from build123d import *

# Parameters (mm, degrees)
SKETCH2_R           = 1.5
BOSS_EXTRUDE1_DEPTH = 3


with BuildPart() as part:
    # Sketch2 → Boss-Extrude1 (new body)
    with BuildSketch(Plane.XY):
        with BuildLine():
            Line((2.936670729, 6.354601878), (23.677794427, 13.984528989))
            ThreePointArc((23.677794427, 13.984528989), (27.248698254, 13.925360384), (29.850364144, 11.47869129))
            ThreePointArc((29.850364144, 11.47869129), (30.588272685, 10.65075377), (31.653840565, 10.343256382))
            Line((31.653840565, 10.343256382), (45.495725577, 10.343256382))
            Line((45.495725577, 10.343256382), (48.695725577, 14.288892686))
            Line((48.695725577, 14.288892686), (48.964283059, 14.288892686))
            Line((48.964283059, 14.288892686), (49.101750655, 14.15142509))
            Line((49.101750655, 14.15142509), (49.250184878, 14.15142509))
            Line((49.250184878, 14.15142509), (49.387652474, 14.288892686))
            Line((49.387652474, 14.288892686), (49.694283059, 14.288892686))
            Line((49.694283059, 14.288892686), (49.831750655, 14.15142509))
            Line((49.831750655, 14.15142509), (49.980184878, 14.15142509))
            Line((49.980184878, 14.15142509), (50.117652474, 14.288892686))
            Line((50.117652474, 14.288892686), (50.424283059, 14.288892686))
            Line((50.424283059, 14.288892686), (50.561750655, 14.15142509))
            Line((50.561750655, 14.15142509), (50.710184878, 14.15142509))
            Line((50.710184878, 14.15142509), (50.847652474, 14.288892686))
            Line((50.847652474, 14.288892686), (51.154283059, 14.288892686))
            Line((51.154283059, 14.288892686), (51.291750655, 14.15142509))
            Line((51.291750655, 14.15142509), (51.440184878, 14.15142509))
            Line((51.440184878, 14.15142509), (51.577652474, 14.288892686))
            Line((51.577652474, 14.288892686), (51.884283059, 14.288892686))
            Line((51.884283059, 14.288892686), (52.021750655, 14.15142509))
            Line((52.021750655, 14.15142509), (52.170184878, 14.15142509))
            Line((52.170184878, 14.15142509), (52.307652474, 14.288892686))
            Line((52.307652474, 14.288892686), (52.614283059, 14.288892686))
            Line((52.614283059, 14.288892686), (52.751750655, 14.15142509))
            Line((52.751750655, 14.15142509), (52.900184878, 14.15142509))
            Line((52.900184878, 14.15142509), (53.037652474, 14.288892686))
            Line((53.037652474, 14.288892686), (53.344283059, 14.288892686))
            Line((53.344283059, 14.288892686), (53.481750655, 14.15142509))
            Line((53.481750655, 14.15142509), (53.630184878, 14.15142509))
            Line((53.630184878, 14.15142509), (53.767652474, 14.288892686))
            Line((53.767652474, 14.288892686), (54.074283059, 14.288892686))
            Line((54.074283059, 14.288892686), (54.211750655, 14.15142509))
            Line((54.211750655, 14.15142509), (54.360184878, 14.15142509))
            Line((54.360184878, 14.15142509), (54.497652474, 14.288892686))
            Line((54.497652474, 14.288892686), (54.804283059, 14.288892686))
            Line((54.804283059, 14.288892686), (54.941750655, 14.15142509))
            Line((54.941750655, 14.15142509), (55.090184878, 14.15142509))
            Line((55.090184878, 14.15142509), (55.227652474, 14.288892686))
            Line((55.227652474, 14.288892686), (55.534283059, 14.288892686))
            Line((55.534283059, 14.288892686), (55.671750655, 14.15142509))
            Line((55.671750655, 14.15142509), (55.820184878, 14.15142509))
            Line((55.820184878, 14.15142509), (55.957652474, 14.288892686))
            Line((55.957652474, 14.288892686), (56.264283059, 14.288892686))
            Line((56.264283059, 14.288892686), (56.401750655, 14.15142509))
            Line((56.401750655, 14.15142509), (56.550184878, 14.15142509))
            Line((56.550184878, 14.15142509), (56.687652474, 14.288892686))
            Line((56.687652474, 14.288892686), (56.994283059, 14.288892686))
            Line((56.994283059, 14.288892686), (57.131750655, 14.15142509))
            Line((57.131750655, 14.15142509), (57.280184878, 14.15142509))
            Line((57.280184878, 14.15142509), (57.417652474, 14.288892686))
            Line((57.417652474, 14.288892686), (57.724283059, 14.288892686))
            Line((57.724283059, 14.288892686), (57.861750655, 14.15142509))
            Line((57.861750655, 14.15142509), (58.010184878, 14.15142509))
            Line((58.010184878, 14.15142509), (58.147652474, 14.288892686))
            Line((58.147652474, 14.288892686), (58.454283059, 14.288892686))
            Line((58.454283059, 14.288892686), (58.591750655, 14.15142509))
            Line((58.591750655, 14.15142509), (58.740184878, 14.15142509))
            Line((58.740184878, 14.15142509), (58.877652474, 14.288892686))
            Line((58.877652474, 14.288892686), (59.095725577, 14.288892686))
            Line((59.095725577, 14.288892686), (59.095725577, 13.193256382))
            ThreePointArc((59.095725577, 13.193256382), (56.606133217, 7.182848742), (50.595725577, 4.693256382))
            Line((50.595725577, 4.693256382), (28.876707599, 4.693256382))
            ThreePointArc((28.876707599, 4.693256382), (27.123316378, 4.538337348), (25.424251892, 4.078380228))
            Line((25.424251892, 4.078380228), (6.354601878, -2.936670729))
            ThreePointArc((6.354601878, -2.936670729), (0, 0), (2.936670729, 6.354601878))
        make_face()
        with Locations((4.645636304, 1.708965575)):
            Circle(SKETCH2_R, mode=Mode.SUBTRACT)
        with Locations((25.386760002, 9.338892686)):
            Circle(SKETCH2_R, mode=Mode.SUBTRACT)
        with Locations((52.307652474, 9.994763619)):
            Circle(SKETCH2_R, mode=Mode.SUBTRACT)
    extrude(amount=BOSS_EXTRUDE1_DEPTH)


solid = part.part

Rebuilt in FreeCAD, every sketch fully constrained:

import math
import FreeCAD as App
import Part
import Sketcher
from FreeCAD import Vector
Q = App.Units.Quantity

doc = App.newDocument("Part")
params = doc.addObject("Spreadsheet::Sheet", "Params")
for row, (alias, value) in enumerate([
    ("sketch1_diameter", "3 mm"),
    ("sketch1_radius", "10 mm"),
    ("sketch1_radius2", "2 mm"),
    ("sketch1_radius3", "8.5 mm"),
    ("sketch1_radius4", "4.95 mm"),
    ("pad1_length", "3 mm"),
], start=1):
    params.set(f"A{row}", alias)
    params.set(f"B{row}", "=" + value)
    params.setAlias(f"B{row}", alias)

body = doc.addObject("PartDesign::Body", "Body")

# Sketch on XY plane
sketch1 = doc.addObject("Sketcher::SketchObject", "Sketch")
body.addObject(sketch1)
sketch1.AttachmentSupport = (doc.XY_Plane, [""])
sketch1.MapMode = "FlatFace"
sketch1.addGeometry([
    Part.LineSegment(Vector(23.68, 13.98, 0), Vector(2.94, 6.35, 0)),  # 0
    Part.ArcOfCircle(Part.Circle(Vector(4.65, 1.71, 0), Vector(0, 0, 1), 4.95), math.radians(110), math.radians(290)),  # 1
    Part.LineSegment(Vector(6.35, -2.94, 0), Vector(25.42, 4.08, 0)),  # 2
    Part.ArcOfCircle(Part.Circle(Vector(28.88, -5.31, 0), Vector(0, 0, 1), 10), math.radians(90), math.radians(110)),  # 3
    Part.LineSegment(Vector(28.88, 4.69, 0), Vector(50.6, 4.69, 0)),  # 4
    Part.ArcOfCircle(Part.Circle(Vector(50.6, 13.19, 0), Vector(0, 0, 1), 8.5), math.radians(-90), math.radians(0)),  # 5
    Part.LineSegment(Vector(59.1, 13.19, 0), Vector(59.1, 14.29, 0)),  # 6
    Part.LineSegment(Vector(59.1, 14.29, 0), Vector(58.88, 14.29, 0)),  # 7
    Part.LineSegment(Vector(58.88, 14.29, 0), Vector(58.74, 14.15, 0)),  # 8
    Part.LineSegment(Vector(58.74, 14.15, 0), Vector(58.59, 14.15, 0)),  # 9
    Part.LineSegment(Vector(58.59, 14.15, 0), Vector(58.45, 14.29, 0)),  # 10
    Part.LineSegment(Vector(58.45, 14.29, 0), Vector(58.15, 14.29, 0)),  # 11
    Part.LineSegment(Vector(58.15, 14.29, 0), Vector(58.01, 14.15, 0)),  # 12
    Part.LineSegment(Vector(58.01, 14.15, 0), Vector(57.86, 14.15, 0)),  # 13
    Part.LineSegment(Vector(57.86, 14.15, 0), Vector(57.72, 14.29, 0)),  # 14
    Part.LineSegment(Vector(57.72, 14.29, 0), Vector(57.42, 14.29, 0)),  # 15
    Part.LineSegment(Vector(57.42, 14.29, 0), Vector(57.28, 14.15, 0)),  # 16
    Part.LineSegment(Vector(57.28, 14.15, 0), Vector(57.13, 14.15, 0)),  # 17
    Part.LineSegment(Vector(57.13, 14.15, 0), Vector(56.99, 14.29, 0)),  # 18
    Part.LineSegment(Vector(56.99, 14.29, 0), Vector(56.69, 14.29, 0)),  # 19
    Part.LineSegment(Vector(56.69, 14.29, 0), Vector(56.55, 14.15, 0)),  # 20
    Part.LineSegment(Vector(56.55, 14.15, 0), Vector(56.4, 14.15, 0)),  # 21
    Part.LineSegment(Vector(56.4, 14.15, 0), Vector(56.26, 14.29, 0)),  # 22
    Part.LineSegment(Vector(56.26, 14.29, 0), Vector(55.96, 14.29, 0)),  # 23
    Part.LineSegment(Vector(55.96, 14.29, 0), Vector(55.82, 14.15, 0)),  # 24
    Part.LineSegment(Vector(55.82, 14.15, 0), Vector(55.67, 14.15, 0)),  # 25
    Part.LineSegment(Vector(55.67, 14.15, 0), Vector(55.53, 14.29, 0)),  # 26
    Part.LineSegment(Vector(55.53, 14.29, 0), Vector(55.23, 14.29, 0)),  # 27
    Part.LineSegment(Vector(55.23, 14.29, 0), Vector(55.09, 14.15, 0)),  # 28
    Part.LineSegment(Vector(55.09, 14.15, 0), Vector(54.94, 14.15, 0)),  # 29
    Part.LineSegment(Vector(54.94, 14.15, 0), Vector(54.8, 14.29, 0)),  # 30
    Part.LineSegment(Vector(54.8, 14.29, 0), Vector(54.5, 14.29, 0)),  # 31
    Part.LineSegment(Vector(54.5, 14.29, 0), Vector(54.36, 14.15, 0)),  # 32
    Part.LineSegment(Vector(54.36, 14.15, 0), Vector(54.21, 14.15, 0)),  # 33
    Part.LineSegment(Vector(54.21, 14.15, 0), Vector(54.07, 14.29, 0)),  # 34
    Part.LineSegment(Vector(54.07, 14.29, 0), Vector(53.77, 14.29, 0)),  # 35
    Part.LineSegment(Vector(53.77, 14.29, 0), Vector(53.63, 14.15, 0)),  # 36
    Part.LineSegment(Vector(53.63, 14.15, 0), Vector(53.48, 14.15, 0)),  # 37
    Part.LineSegment(Vector(53.48, 14.15, 0), Vector(53.34, 14.29, 0)),  # 38
    Part.LineSegment(Vector(53.34, 14.29, 0), Vector(53.04, 14.29, 0)),  # 39
    Part.LineSegment(Vector(53.04, 14.29, 0), Vector(52.9, 14.15, 0)),  # 40
    Part.LineSegment(Vector(52.9, 14.15, 0), Vector(52.75, 14.15, 0)),  # 41
    Part.LineSegment(Vector(52.75, 14.15, 0), Vector(52.61, 14.29, 0)),  # 42
    Part.LineSegment(Vector(52.61, 14.29, 0), Vector(52.31, 14.29, 0)),  # 43
    Part.LineSegment(Vector(52.31, 14.29, 0), Vector(52.17, 14.15, 0)),  # 44
    Part.LineSegment(Vector(52.17, 14.15, 0), Vector(52.02, 14.15, 0)),  # 45
    Part.LineSegment(Vector(52.02, 14.15, 0), Vector(51.88, 14.29, 0)),  # 46
    Part.LineSegment(Vector(51.88, 14.29, 0), Vector(51.58, 14.29, 0)),  # 47
    Part.LineSegment(Vector(51.58, 14.29, 0), Vector(51.44, 14.15, 0)),  # 48
    Part.LineSegment(Vector(51.44, 14.15, 0), Vector(51.29, 14.15, 0)),  # 49
    Part.LineSegment(Vector(51.29, 14.15, 0), Vector(51.15, 14.29, 0)),  # 50
    Part.LineSegment(Vector(51.15, 14.29, 0), Vector(50.85, 14.29, 0)),  # 51
    Part.LineSegment(Vector(50.85, 14.29, 0), Vector(50.71, 14.15, 0)),  # 52
    Part.LineSegment(Vector(50.71, 14.15, 0), Vector(50.56, 14.15, 0)),  # 53
    Part.LineSegment(Vector(50.56, 14.15, 0), Vector(50.42, 14.29, 0)),  # 54
    Part.LineSegment(Vector(50.42, 14.29, 0), Vector(50.12, 14.29, 0)),  # 55
    Part.LineSegment(Vector(50.12, 14.29, 0), Vector(49.98, 14.15, 0)),  # 56
    Part.LineSegment(Vector(49.98, 14.15, 0), Vector(49.83, 14.15, 0)),  # 57
    Part.LineSegment(Vector(49.83, 14.15, 0), Vector(49.69, 14.29, 0)),  # 58
    Part.LineSegment(Vector(49.69, 14.29, 0), Vector(49.39, 14.29, 0)),  # 59
    Part.LineSegment(Vector(49.39, 14.29, 0), Vector(49.25, 14.15, 0)),  # 60
    Part.LineSegment(Vector(49.25, 14.15, 0), Vector(49.1, 14.15, 0)),  # 61
    Part.LineSegment(Vector(49.1, 14.15, 0), Vector(48.96, 14.29, 0)),  # 62
    Part.LineSegment(Vector(48.96, 14.29, 0), Vector(48.7, 14.29, 0)),  # 63
    Part.LineSegment(Vector(48.7, 14.29, 0), Vector(45.5, 10.34, 0)),  # 64
    Part.LineSegment(Vector(45.5, 10.34, 0), Vector(31.65, 10.34, 0)),  # 65
    Part.ArcOfCircle(Part.Circle(Vector(31.65, 12.34, 0), Vector(0, 0, 1), 2), math.radians(-154), math.radians(-90)),  # 66
    Part.ArcOfCircle(Part.Circle(Vector(25.39, 9.34, 0), Vector(0, 0, 1), 4.95), math.radians(26), math.radians(110)),  # 67
    Part.Circle(Vector(4.65, 1.71, 0), Vector(0, 0, 1), 1.5),  # 68
    Part.Circle(Vector(52.31, 9.99, 0), Vector(0, 0, 1), 1.5),  # 69
    Part.Circle(Vector(25.39, 9.34, 0), Vector(0, 0, 1), 1.5),  # 70
], False)
sketch1.addConstraint([
    Sketcher.Constraint("Tangent", 0, 2, 1, 1),
    Sketcher.Constraint("Tangent", 1, 2, 2, 1),
    Sketcher.Constraint("Tangent", 2, 2, 3, 2),
    Sketcher.Constraint("Tangent", 3, 1, 4, 1),
    Sketcher.Constraint("Tangent", 4, 2, 5, 1),
    Sketcher.Constraint("Tangent", 5, 2, 6, 1),
    Sketcher.Constraint("Coincident", 6, 2, 7, 1),
    Sketcher.Constraint("Coincident", 7, 2, 8, 1),
    Sketcher.Constraint("Coincident", 8, 2, 9, 1),
    Sketcher.Constraint("Coincident", 9, 2, 10, 1),
    Sketcher.Constraint("Coincident", 10, 2, 11, 1),
    Sketcher.Constraint("Coincident", 11, 2, 12, 1),
    Sketcher.Constraint("Coincident", 12, 2, 13, 1),
    Sketcher.Constraint("Coincident", 13, 2, 14, 1),
    Sketcher.Constraint("Coincident", 14, 2, 15, 1),
    Sketcher.Constraint("Coincident", 15, 2, 16, 1),
    Sketcher.Constraint("Coincident", 16, 2, 17, 1),
    Sketcher.Constraint("Coincident", 17, 2, 18, 1),
    Sketcher.Constraint("Coincident", 18, 2, 19, 1),
    Sketcher.Constraint("Coincident", 19, 2, 20, 1),
    Sketcher.Constraint("Coincident", 20, 2, 21, 1),
    Sketcher.Constraint("Coincident", 21, 2, 22, 1),
    Sketcher.Constraint("Coincident", 22, 2, 23, 1),
    Sketcher.Constraint("Coincident", 23, 2, 24, 1),
    Sketcher.Constraint("Coincident", 24, 2, 25, 1),
    Sketcher.Constraint("Coincident", 25, 2, 26, 1),
    Sketcher.Constraint("Coincident", 26, 2, 27, 1),
    Sketcher.Constraint("Coincident", 27, 2, 28, 1),
    Sketcher.Constraint("Coincident", 28, 2, 29, 1),
    Sketcher.Constraint("Coincident", 29, 2, 30, 1),
    Sketcher.Constraint("Coincident", 30, 2, 31, 1),
    Sketcher.Constraint("Coincident", 31, 2, 32, 1),
    Sketcher.Constraint("Coincident", 32, 2, 33, 1),
    Sketcher.Constraint("Coincident", 33, 2, 34, 1),
    Sketcher.Constraint("Coincident", 34, 2, 35, 1),
    Sketcher.Constraint("Coincident", 35, 2, 36, 1),
    Sketcher.Constraint("Coincident", 36, 2, 37, 1),
    Sketcher.Constraint("Coincident", 37, 2, 38, 1),
    Sketcher.Constraint("Coincident", 38, 2, 39, 1),
    Sketcher.Constraint("Coincident", 39, 2, 40, 1),
    Sketcher.Constraint("Coincident", 40, 2, 41, 1),
    Sketcher.Constraint("Coincident", 41, 2, 42, 1),
    Sketcher.Constraint("Coincident", 42, 2, 43, 1),
    Sketcher.Constraint("Coincident", 43, 2, 44, 1),
    Sketcher.Constraint("Coincident", 44, 2, 45, 1),
    Sketcher.Constraint("Coincident", 45, 2, 46, 1),
    Sketcher.Constraint("Coincident", 46, 2, 47, 1),
    Sketcher.Constraint("Coincident", 47, 2, 48, 1),
    Sketcher.Constraint("Coincident", 48, 2, 49, 1),
    Sketcher.Constraint("Coincident", 49, 2, 50, 1),
    Sketcher.Constraint("Coincident", 50, 2, 51, 1),
    Sketcher.Constraint("Coincident", 51, 2, 52, 1),
    Sketcher.Constraint("Coincident", 52, 2, 53, 1),
    Sketcher.Constraint("Coincident", 53, 2, 54, 1),
    Sketcher.Constraint("Coincident", 54, 2, 55, 1),
    Sketcher.Constraint("Coincident", 55, 2, 56, 1),
    Sketcher.Constraint("Coincident", 56, 2, 57, 1),
    Sketcher.Constraint("Coincident", 57, 2, 58, 1),
    Sketcher.Constraint("Coincident", 58, 2, 59, 1),
    Sketcher.Constraint("Coincident", 59, 2, 60, 1),
    Sketcher.Constraint("Coincident", 60, 2, 61, 1),
    Sketcher.Constraint("Coincident", 61, 2, 62, 1),
    Sketcher.Constraint("Coincident", 62, 2, 63, 1),
    Sketcher.Constraint("Coincident", 63, 2, 64, 1),
    Sketcher.Constraint("Coincident", 64, 2, 65, 1),
    Sketcher.Constraint("Tangent", 65, 2, 66, 2),
    Sketcher.Constraint("Tangent", 66, 1, 67, 1),
    Sketcher.Constraint("Tangent", 67, 2, 0, 1),
    Sketcher.Constraint("Horizontal", 4),
    Sketcher.Constraint("Vertical", 6),
    Sketcher.Constraint("Horizontal", 7),
    Sketcher.Constraint("Horizontal", 9),
    Sketcher.Constraint("Horizontal", 11),
    Sketcher.Constraint("Horizontal", 13),
    Sketcher.Constraint("Horizontal", 15),
    Sketcher.Constraint("Horizontal", 17),
    Sketcher.Constraint("Horizontal", 19),
    Sketcher.Constraint("Horizontal", 21),
    Sketcher.Constraint("Horizontal", 23),
    Sketcher.Constraint("Horizontal", 25),
    Sketcher.Constraint("Horizontal", 27),
    Sketcher.Constraint("Horizontal", 29),
    Sketcher.Constraint("Horizontal", 31),
    Sketcher.Constraint("Horizontal", 33),
    Sketcher.Constraint("Horizontal", 35),
    Sketcher.Constraint("Horizontal", 37),
    Sketcher.Constraint("Horizontal", 39),
    Sketcher.Constraint("Horizontal", 41),
    Sketcher.Constraint("Horizontal", 43),
    Sketcher.Constraint("Horizontal", 45),
    Sketcher.Constraint("Horizontal", 47),
    Sketcher.Constraint("Horizontal", 49),
    Sketcher.Constraint("Horizontal", 51),
    Sketcher.Constraint("Horizontal", 53),
    Sketcher.Constraint("Horizontal", 55),
    Sketcher.Constraint("Horizontal", 57),
    Sketcher.Constraint("Horizontal", 59),
    Sketcher.Constraint("Horizontal", 61),
    Sketcher.Constraint("Horizontal", 63),
    Sketcher.Constraint("Horizontal", 65),
    Sketcher.Constraint("Coincident", 68, 3, 1, 3),
    Sketcher.Constraint("Coincident", 70, 3, 67, 3),
    Sketcher.Constraint("Equal", 1, 67),
    Sketcher.Constraint("Equal", 68, 69),
    Sketcher.Constraint("Equal", 69, 70),
    Sketcher.Constraint("Parallel", 0, 2),
    Sketcher.Constraint("Perpendicular", 8, 10),
    Sketcher.Constraint("Perpendicular", 10, 12),
    Sketcher.Constraint("Perpendicular", 12, 14),
    Sketcher.Constraint("Perpendicular", 14, 16),
    Sketcher.Constraint("Perpendicular", 16, 18),
    Sketcher.Constraint("Perpendicular", 18, 20),
    Sketcher.Constraint("Perpendicular", 20, 22),
    Sketcher.Constraint("Perpendicular", 22, 24),
    Sketcher.Constraint("Perpendicular", 24, 26),
    Sketcher.Constraint("Perpendicular", 26, 28),
    Sketcher.Constraint("Perpendicular", 28, 30),
    Sketcher.Constraint("Perpendicular", 30, 32),
    Sketcher.Constraint("Perpendicular", 32, 34),
    Sketcher.Constraint("Perpendicular", 34, 36),
    Sketcher.Constraint("Perpendicular", 36, 38),
    Sketcher.Constraint("Perpendicular", 38, 40),
    Sketcher.Constraint("Perpendicular", 40, 42),
    Sketcher.Constraint("Perpendicular", 42, 44),
    Sketcher.Constraint("Perpendicular", 44, 46),
    Sketcher.Constraint("Perpendicular", 46, 48),
    Sketcher.Constraint("Perpendicular", 48, 50),
    Sketcher.Constraint("Perpendicular", 50, 52),
    Sketcher.Constraint("Perpendicular", 52, 54),
    Sketcher.Constraint("Perpendicular", 54, 56),
    Sketcher.Constraint("Perpendicular", 56, 58),
    Sketcher.Constraint("Perpendicular", 58, 60),
    Sketcher.Constraint("Perpendicular", 60, 62),
    Sketcher.Constraint("Horizontal", 7, 2, 10, 2),
    Sketcher.Constraint("Horizontal", 9, 2, 12, 2),
    Sketcher.Constraint("Horizontal", 11, 2, 14, 2),
    Sketcher.Constraint("Horizontal", 13, 2, 16, 2),
    Sketcher.Constraint("Horizontal", 15, 2, 18, 2),
    Sketcher.Constraint("Horizontal", 17, 2, 20, 2),
    Sketcher.Constraint("Horizontal", 19, 2, 22, 2),
    Sketcher.Constraint("Horizontal", 21, 2, 24, 2),
    Sketcher.Constraint("Horizontal", 23, 2, 26, 2),
    Sketcher.Constraint("Horizontal", 25, 2, 28, 2),
    Sketcher.Constraint("Horizontal", 27, 2, 30, 2),
    Sketcher.Constraint("Horizontal", 29, 2, 32, 2),
    Sketcher.Constraint("Horizontal", 31, 2, 34, 2),
    Sketcher.Constraint("Horizontal", 33, 2, 36, 2),
    Sketcher.Constraint("Horizontal", 35, 2, 38, 2),
    Sketcher.Constraint("Horizontal", 37, 2, 40, 2),
    Sketcher.Constraint("Horizontal", 39, 2, 42, 2),
    Sketcher.Constraint("Horizontal", 41, 2, 44, 2),
    Sketcher.Constraint("Horizontal", 43, 2, 46, 2),
    Sketcher.Constraint("Horizontal", 45, 2, 48, 2),
    Sketcher.Constraint("Horizontal", 47, 2, 50, 2),
    Sketcher.Constraint("Horizontal", 49, 2, 52, 2),
    Sketcher.Constraint("Horizontal", 51, 2, 54, 2),
    Sketcher.Constraint("Horizontal", 53, 2, 56, 2),
    Sketcher.Constraint("Horizontal", 55, 2, 58, 2),
    Sketcher.Constraint("Horizontal", 57, 2, 60, 2),
    Sketcher.Constraint("Horizontal", 59, 2, 62, 2),
    Sketcher.Constraint("Vertical", 69, 3, 43, 2),
    Sketcher.Constraint("Equal", 9, 13),
    Sketcher.Constraint("Equal", 11, 15),
    Sketcher.Constraint("Equal", 13, 17),
    Sketcher.Constraint("Equal", 15, 19),
    Sketcher.Constraint("Equal", 17, 21),
    Sketcher.Constraint("Equal", 19, 23),
    Sketcher.Constraint("Equal", 21, 25),
    Sketcher.Constraint("Equal", 23, 27),
    Sketcher.Constraint("Equal", 25, 29),
    Sketcher.Constraint("Equal", 27, 31),
    Sketcher.Constraint("Equal", 29, 33),
    Sketcher.Constraint("Equal", 31, 35),
    Sketcher.Constraint("Equal", 33, 37),
    Sketcher.Constraint("Equal", 35, 39),
    Sketcher.Constraint("Equal", 37, 41),
    Sketcher.Constraint("Equal", 39, 43),
    Sketcher.Constraint("Equal", 41, 45),
    Sketcher.Constraint("Equal", 43, 47),
    Sketcher.Constraint("Equal", 45, 49),
    Sketcher.Constraint("Equal", 47, 51),
    Sketcher.Constraint("Equal", 49, 53),
    Sketcher.Constraint("Equal", 51, 55),
    Sketcher.Constraint("Equal", 53, 57),
    Sketcher.Constraint("Equal", 55, 59),
    Sketcher.Constraint("Equal", 57, 61),
    Sketcher.Constraint("Equal", 8, 10),
    Sketcher.Constraint("Diameter", 68, Q("3 mm")),
    Sketcher.Constraint("Radius", 3, Q("10 mm")),
    Sketcher.Constraint("Radius", 66, Q("2 mm")),
    Sketcher.Constraint("Radius", 5, Q("8.5 mm")),
    Sketcher.Constraint("Radius", 1, Q("4.95 mm")),
    Sketcher.Constraint("Distance", 0, Q("22.1 mm")),
    Sketcher.Constraint("DistanceX", 11, 2, 11, 1, Q("0.306631 mm")),
    Sketcher.Constraint("DistanceY", -1, 1, 0, 2, Q("6.354602 mm")),
    Sketcher.Constraint("DistanceX", -1, 1, 1, 2, Q("6.354602 mm")),
    Sketcher.Constraint("Distance", 8, Q("0.194409 mm")),
    Sketcher.Constraint("Distance", 64, Q("5.080162 mm")),
    Sketcher.Constraint("DistanceX", 4, 1, 4, 2, Q("21.719018 mm")),
    Sketcher.Constraint("DistanceX", 7, 2, 7, 1, Q("0.218073 mm")),
    Sketcher.Constraint("DistanceX", 9, 2, 9, 1, Q("0.148434 mm")),
    Sketcher.Constraint("DistanceX", 63, 2, 63, 1, Q("0.268557 mm")),
    Sketcher.Constraint("DistanceX", 65, 2, 65, 1, Q("13.841885 mm")),
    Sketcher.Constraint("DistanceY", 6, 1, 6, 2, Q("1.095636 mm")),
    Sketcher.Constraint("DistanceX", -1, 1, 66, 3, Q("31.653841 mm")),
    Sketcher.Constraint("DistanceX", -1, 1, 67, 3, Q("25.38676 mm")),
    Sketcher.Constraint("DistanceY", -1, 1, 69, 3, Q("9.994764 mm")),
])
sketch1.setExpression("Constraints[187]", "Params.sketch1_diameter")
sketch1.setExpression("Constraints[188]", "Params.sketch1_radius")
sketch1.setExpression("Constraints[189]", "Params.sketch1_radius2")
sketch1.setExpression("Constraints[190]", "Params.sketch1_radius3")
sketch1.setExpression("Constraints[191]", "Params.sketch1_radius4")
pad1 = doc.addObject("PartDesign::Pad", "Pad")
body.addObject(pad1)
pad1.Profile = sketch1
pad1.setExpression("Length", "Params.pad1_length")

doc.recompute()
